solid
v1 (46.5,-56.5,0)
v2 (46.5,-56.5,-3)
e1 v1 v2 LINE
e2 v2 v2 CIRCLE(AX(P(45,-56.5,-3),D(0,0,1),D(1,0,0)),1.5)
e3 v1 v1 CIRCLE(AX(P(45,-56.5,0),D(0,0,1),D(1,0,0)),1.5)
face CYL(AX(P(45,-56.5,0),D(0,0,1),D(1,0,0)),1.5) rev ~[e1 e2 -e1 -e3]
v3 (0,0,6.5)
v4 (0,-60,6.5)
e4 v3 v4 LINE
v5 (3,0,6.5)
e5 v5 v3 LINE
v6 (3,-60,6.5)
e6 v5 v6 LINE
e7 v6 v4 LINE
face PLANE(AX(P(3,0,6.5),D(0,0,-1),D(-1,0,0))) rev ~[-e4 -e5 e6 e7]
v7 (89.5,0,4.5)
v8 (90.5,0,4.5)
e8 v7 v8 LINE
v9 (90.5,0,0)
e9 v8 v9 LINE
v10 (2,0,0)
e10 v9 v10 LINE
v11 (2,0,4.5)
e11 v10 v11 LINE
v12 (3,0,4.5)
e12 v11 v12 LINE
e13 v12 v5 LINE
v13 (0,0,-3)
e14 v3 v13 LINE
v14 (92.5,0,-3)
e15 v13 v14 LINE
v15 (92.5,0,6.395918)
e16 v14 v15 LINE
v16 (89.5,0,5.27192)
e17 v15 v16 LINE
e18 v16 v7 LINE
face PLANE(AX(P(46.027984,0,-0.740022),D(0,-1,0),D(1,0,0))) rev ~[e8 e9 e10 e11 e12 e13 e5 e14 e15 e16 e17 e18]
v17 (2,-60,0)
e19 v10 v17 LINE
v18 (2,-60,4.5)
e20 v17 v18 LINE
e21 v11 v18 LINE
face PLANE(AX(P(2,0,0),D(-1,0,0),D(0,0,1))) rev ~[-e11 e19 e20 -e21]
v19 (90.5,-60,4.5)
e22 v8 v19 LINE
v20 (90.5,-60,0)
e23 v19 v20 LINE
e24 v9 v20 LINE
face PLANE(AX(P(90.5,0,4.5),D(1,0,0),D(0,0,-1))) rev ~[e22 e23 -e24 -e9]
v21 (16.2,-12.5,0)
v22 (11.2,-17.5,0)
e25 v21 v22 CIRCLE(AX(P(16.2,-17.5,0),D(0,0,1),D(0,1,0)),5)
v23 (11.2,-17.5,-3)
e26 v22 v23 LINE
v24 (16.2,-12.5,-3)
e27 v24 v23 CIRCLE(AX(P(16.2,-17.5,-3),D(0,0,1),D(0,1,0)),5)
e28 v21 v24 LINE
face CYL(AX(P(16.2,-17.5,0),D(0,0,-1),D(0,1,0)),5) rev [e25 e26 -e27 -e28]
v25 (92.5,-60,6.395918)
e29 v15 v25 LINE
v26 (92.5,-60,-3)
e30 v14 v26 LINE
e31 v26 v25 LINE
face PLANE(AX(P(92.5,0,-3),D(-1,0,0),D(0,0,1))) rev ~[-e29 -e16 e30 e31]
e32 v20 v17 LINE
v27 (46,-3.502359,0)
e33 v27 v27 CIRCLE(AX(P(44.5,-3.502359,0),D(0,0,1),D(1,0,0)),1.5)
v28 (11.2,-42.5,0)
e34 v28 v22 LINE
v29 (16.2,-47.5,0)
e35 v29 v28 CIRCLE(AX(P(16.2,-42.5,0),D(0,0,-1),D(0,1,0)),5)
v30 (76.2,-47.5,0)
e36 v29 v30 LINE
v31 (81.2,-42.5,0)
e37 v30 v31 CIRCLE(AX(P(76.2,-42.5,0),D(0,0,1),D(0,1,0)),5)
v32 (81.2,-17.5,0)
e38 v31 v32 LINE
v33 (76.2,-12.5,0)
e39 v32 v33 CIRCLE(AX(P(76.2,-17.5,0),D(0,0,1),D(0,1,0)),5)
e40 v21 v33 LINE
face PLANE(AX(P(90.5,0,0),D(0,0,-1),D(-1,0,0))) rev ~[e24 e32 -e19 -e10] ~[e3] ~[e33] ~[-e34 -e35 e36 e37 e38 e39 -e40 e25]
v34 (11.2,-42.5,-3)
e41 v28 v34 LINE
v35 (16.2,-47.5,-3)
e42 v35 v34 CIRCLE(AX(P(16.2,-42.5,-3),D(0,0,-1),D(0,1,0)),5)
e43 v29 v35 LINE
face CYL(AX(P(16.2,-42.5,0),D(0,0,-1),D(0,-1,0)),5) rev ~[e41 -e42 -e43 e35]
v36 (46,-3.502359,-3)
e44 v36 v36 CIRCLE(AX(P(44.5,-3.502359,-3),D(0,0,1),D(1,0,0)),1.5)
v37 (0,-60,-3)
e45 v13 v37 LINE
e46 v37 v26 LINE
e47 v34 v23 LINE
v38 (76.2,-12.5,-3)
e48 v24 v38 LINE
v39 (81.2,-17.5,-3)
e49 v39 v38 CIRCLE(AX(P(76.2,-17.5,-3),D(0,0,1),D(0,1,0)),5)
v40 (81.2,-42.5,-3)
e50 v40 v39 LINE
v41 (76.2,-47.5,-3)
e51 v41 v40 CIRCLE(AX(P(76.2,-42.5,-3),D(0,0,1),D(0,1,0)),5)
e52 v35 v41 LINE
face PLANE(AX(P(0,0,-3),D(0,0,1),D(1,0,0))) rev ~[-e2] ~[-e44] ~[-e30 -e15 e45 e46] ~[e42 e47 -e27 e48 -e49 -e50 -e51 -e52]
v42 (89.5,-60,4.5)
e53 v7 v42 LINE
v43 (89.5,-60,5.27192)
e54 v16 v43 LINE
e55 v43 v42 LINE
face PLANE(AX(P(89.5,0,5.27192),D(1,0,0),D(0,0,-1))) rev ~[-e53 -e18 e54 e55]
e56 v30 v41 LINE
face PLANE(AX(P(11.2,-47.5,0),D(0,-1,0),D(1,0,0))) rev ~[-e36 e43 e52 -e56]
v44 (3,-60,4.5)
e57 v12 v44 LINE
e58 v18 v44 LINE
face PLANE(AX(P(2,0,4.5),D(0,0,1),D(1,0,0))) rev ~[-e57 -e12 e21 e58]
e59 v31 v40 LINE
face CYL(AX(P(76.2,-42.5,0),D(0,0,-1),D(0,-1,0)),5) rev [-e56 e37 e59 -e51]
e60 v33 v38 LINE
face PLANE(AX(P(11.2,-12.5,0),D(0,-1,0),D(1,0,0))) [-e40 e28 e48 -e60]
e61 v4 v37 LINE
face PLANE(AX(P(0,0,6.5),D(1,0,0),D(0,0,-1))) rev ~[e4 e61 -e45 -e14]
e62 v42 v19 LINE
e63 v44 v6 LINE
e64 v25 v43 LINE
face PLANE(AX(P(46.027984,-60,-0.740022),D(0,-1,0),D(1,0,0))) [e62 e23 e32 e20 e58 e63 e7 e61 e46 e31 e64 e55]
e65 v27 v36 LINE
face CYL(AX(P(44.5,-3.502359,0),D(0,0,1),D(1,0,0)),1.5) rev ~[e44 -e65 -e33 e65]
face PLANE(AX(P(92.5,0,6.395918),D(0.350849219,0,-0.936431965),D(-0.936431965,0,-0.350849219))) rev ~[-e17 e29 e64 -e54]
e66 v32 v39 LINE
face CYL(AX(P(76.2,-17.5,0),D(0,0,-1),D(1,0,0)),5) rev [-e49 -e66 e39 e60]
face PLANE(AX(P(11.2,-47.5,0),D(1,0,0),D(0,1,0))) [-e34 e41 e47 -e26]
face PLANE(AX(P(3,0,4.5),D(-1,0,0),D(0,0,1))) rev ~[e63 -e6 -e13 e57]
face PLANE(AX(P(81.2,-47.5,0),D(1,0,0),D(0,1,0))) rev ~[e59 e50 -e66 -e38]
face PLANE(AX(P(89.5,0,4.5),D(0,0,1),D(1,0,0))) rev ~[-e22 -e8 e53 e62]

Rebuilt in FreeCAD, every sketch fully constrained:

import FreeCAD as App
import Part
import Sketcher
Q = App.Units.Quantity


def edges_at(feature, points):
    """Names of the edges that pass closest to the given points."""
    edges = feature.Shape.Edges
    near = lambda p: min(range(len(edges)), key=lambda i: edges[i].distToShape(Part.Vertex(*p))[0])
    return sorted({f"Edge{near(p) + 1}" for p in points})

doc = App.newDocument("Part")
body = doc.addObject("PartDesign::Body", "Body")

# Sketch on XZ plane
sketch1 = doc.addObject("Sketcher::SketchObject", "Sketch")
body.addObject(sketch1)
sketch1.AttachmentSupport = (doc.XZ_Plane, [""])
sketch1.MapMode = "FlatFace"
sketch1.addGeometry(Part.LineSegment(App.Vector(0, 6.5, 0), App.Vector(0, -3, 0)), False)
sketch1.addGeometry(Part.LineSegment(App.Vector(0, -3, 0), App.Vector(92.5, -3, 0)), False)
sketch1.addGeometry(Part.LineSegment(App.Vector(92.5, -3, 0), App.Vector(92.5, 6.4, 0)), False)
sketch1.addGeometry(Part.LineSegment(App.Vector(92.5, 6.4, 0), App.Vector(89.5, 5.3, 0)), False)
sketch1.addGeometry(Part.LineSegment(App.Vector(89.5, 5.3, 0), App.Vector(89.5, 4.5, 0)), False)
sketch1.addGeometry(Part.LineSegment(App.Vector(89.5, 4.5, 0), App.Vector(90.5, 4.5, 0)), False)
sketch1.addGeometry(Part.LineSegment(App.Vector(90.5, 4.5, 0), App.Vector(90.5, 0, 0)), False)
sketch1.addGeometry(Part.LineSegment(App.Vector(90.5, 0, 0), App.Vector(2, 0, 0)), False)
sketch1.addGeometry(Part.LineSegment(App.Vector(2, 0, 0), App.Vector(2, 4.5, 0)), False)
sketch1.addGeometry(Part.LineSegment(App.Vector(2, 4.5, 0), App.Vector(3, 4.5, 0)), False)
sketch1.addGeometry(Part.LineSegment(App.Vector(3, 4.5, 0), App.Vector(3, 6.5, 0)), False)
sketch1.addGeometry(Part.LineSegment(App.Vector(3, 6.5, 0), App.Vector(0, 6.5, 0)), False)
sketch1.addConstraint(Sketcher.Constraint("Coincident", 0, 2, 1, 1))
sketch1.addConstraint(Sketcher.Constraint("Coincident", 1, 2, 2, 1))
sketch1.addConstraint(Sketcher.Constraint("Coincident", 2, 2, 3, 1))
sketch1.addConstraint(Sketcher.Constraint("Coincident", 3, 2, 4, 1))
sketch1.addConstraint(Sketcher.Constraint("Coincident", 4, 2, 5, 1))
sketch1.addConstraint(Sketcher.Constraint("Coincident", 5, 2, 6, 1))
sketch1.addConstraint(Sketcher.Constraint("Coincident", 6, 2, 7, 1))
sketch1.addConstraint(Sketcher.Constraint("Coincident", 7, 2, 8, 1))
sketch1.addConstraint(Sketcher.Constraint("Coincident", 8, 2, 9, 1))
sketch1.addConstraint(Sketcher.Constraint("Coincident", 9, 2, 10, 1))
sketch1.addConstraint(Sketcher.Constraint("Coincident", 10, 2, 11, 1))
sketch1.addConstraint(Sketcher.Constraint("Coincident", 11, 2, 0, 1))
sketch1.addConstraint(Sketcher.Constraint("Vertical", 0))
sketch1.addConstraint(Sketcher.Constraint("Horizontal", 1))
sketch1.addConstraint(Sketcher.Constraint("Vertical", 2))
sketch1.addConstraint(Sketcher.Constraint("Vertical", 4))
sketch1.addConstraint(Sketcher.Constraint("Horizontal", 5))
sketch1.addConstraint(Sketcher.Constraint("Vertical", 6))
sketch1.addConstraint(Sketcher.Constraint("Horizontal", 7))
sketch1.addConstraint(Sketcher.Constraint("Vertical", 8))
sketch1.addConstraint(Sketcher.Constraint("Horizontal", 9))
sketch1.addConstraint(Sketcher.Constraint("Vertical", 10))
sketch1.addConstraint(Sketcher.Constraint("Horizontal", 11))
sketch1.addConstraint(Sketcher.Constraint("PointOnObject", 0, 2, -2))
sketch1.addConstraint(Sketcher.Constraint("PointOnObject", 6, 2, -1))
sketch1.addConstraint(Sketcher.Constraint("Horizontal", 5, 2, 8, 2))
sketch1.addConstraint(Sketcher.Constraint("Equal", 5, 9))
sketch1.addConstraint(Sketcher.Constraint("DistanceX", 5, 1, 5, 2, Q("1 mm")))
sketch1.addConstraint(Sketcher.Constraint("DistanceX", 11, 2, 11, 1, Q("3 mm")))
sketch1.addConstraint(Sketcher.Constraint("DistanceY", 10, 1, 10, 2, Q("2 mm")))
sketch1.addConstraint(Sketcher.Constraint("DistanceX", 1, 1, 1, 2, Q("92.5 mm")))
sketch1.addConstraint(Sketcher.Constraint("DistanceX", 7, 2, 7, 1, Q("88.5 mm")))
sketch1.addConstraint(Sketcher.Constraint("DistanceY", 0, 2, 0, 1, Q("9.5 mm")))
sketch1.addConstraint(Sketcher.Constraint("DistanceY", 6, 2, 6, 1, Q("4.5 mm")))
sketch1.addConstraint(Sketcher.Constraint("DistanceY", 3, 2, 2, 2, Q("1.123998 mm")))
sketch1.addConstraint(Sketcher.Constraint("DistanceY", 4, 2, 4, 1, Q("0.77192 mm")))
pad1 = doc.addObject("PartDesign::Pad", "Pad")
body.addObject(pad1)
pad1.Profile = sketch1
pad1.Length = 60

# Sketch on XY plane
sketch2 = doc.addObject("Sketcher::SketchObject", "Sketch001")
body.addObject(sketch2)
sketch2.AttachmentSupport = (doc.XY_Plane, [""])
sketch2.MapMode = "FlatFace"
sketch2.addGeometry(Part.Circle(App.Vector(45, -56.5, 0), App.Vector(0, 0, 1), 1.5), False)
sketch2.addGeometry(Part.Circle(App.Vector(44.5, -3.5, 0), App.Vector(0, 0, 1), 1.5), False)
sketch2.addConstraint(Sketcher.Constraint("Equal", 0, 1))
sketch2.addConstraint(Sketcher.Constraint("Diameter", 0, Q("3 mm")))
sketch2.addConstraint(Sketcher.Constraint("DistanceX", -1, 1, 0, 3, Q("45 mm")))
sketch2.addConstraint(Sketcher.Constraint("DistanceY", 0, 3, -1, 1, Q("56.5 mm")))
sketch2.addConstraint(Sketcher.Constraint("DistanceX", -1, 1, 1, 3, Q("44.5 mm")))
sketch2.addConstraint(Sketcher.Constraint("DistanceY", 1, 3, -1, 1, Q("3.502359 mm")))
pocket1 = doc.addObject("PartDesign::Pocket", "Pocket")
body.addObject(pocket1)
pocket1.Profile = sketch2
pocket1.Length = 25

# Sketch on XY plane
sketch3 = doc.addObject("Sketcher::SketchObject", "Sketch002")
body.addObject(sketch3)
sketch3.AttachmentSupport = (doc.XY_Plane, [""])
sketch3.MapMode = "FlatFace"
sketch3.addGeometry(Part.LineSegment(App.Vector(11, -12, 0), App.Vector(11, -48, 0)), False)
sketch3.addGeometry(Part.LineSegment(App.Vector(11, -48, 0), App.Vector(81, -48, 0)), False)
sketch3.addGeometry(Part.LineSegment(App.Vector(81, -48, 0), App.Vector(81, -12, 0)), False)
sketch3.addGeometry(Part.LineSegment(App.Vector(81, -12, 0), App.Vector(11, -12, 0)), False)
sketch3.addConstraint(Sketcher.Constraint("Coincident", 0, 2, 1, 1))
sketch3.addConstraint(Sketcher.Constraint("Coincident", 1, 2, 2, 1))
sketch3.addConstraint(Sketcher.Constraint("Coincident", 2, 2, 3, 1))
sketch3.addConstraint(Sketcher.Constraint("Coincident", 3, 2, 0, 1))
sketch3.addConstraint(Sketcher.Constraint("Vertical", 0))
sketch3.addConstraint(Sketcher.Constraint("Horizontal", 1))
sketch3.addConstraint(Sketcher.Constraint("Vertical", 2))
sketch3.addConstraint(Sketcher.Constraint("Horizontal", 3))
sketch3.addConstraint(Sketcher.Constraint("DistanceX", 1, 1, 1, 2, Q("70 mm")))
sketch3.addConstraint(Sketcher.Constraint("DistanceY", 0, 2, 0, 1, Q("35 mm")))
sketch3.addConstraint(Sketcher.Constraint("DistanceX", -1, 1, 0, 2, Q("11.2 mm")))
sketch3.addConstraint(Sketcher.Constraint("DistanceY", 0, 2, -1, 1, Q("47.5 mm")))
pocket2 = doc.addObject("PartDesign::Pocket", "Pocket001")
body.addObject(pocket2)
pocket2.Profile = sketch3
pocket2.Length = 25
doc.recompute()

fillet = doc.addObject("PartDesign::Fillet", "Fillet")
body.addObject(fillet)
fillet.Base = (pocket2, edges_at(pocket2, [
    (11.2, -12.5, -1.5),
    (81.2, -47.5, -1.5),
    (81.2, -12.5, -1.5),
    (11.2, -47.5, -1.5),
]))
fillet.Radius = 5

doc.recompute()
